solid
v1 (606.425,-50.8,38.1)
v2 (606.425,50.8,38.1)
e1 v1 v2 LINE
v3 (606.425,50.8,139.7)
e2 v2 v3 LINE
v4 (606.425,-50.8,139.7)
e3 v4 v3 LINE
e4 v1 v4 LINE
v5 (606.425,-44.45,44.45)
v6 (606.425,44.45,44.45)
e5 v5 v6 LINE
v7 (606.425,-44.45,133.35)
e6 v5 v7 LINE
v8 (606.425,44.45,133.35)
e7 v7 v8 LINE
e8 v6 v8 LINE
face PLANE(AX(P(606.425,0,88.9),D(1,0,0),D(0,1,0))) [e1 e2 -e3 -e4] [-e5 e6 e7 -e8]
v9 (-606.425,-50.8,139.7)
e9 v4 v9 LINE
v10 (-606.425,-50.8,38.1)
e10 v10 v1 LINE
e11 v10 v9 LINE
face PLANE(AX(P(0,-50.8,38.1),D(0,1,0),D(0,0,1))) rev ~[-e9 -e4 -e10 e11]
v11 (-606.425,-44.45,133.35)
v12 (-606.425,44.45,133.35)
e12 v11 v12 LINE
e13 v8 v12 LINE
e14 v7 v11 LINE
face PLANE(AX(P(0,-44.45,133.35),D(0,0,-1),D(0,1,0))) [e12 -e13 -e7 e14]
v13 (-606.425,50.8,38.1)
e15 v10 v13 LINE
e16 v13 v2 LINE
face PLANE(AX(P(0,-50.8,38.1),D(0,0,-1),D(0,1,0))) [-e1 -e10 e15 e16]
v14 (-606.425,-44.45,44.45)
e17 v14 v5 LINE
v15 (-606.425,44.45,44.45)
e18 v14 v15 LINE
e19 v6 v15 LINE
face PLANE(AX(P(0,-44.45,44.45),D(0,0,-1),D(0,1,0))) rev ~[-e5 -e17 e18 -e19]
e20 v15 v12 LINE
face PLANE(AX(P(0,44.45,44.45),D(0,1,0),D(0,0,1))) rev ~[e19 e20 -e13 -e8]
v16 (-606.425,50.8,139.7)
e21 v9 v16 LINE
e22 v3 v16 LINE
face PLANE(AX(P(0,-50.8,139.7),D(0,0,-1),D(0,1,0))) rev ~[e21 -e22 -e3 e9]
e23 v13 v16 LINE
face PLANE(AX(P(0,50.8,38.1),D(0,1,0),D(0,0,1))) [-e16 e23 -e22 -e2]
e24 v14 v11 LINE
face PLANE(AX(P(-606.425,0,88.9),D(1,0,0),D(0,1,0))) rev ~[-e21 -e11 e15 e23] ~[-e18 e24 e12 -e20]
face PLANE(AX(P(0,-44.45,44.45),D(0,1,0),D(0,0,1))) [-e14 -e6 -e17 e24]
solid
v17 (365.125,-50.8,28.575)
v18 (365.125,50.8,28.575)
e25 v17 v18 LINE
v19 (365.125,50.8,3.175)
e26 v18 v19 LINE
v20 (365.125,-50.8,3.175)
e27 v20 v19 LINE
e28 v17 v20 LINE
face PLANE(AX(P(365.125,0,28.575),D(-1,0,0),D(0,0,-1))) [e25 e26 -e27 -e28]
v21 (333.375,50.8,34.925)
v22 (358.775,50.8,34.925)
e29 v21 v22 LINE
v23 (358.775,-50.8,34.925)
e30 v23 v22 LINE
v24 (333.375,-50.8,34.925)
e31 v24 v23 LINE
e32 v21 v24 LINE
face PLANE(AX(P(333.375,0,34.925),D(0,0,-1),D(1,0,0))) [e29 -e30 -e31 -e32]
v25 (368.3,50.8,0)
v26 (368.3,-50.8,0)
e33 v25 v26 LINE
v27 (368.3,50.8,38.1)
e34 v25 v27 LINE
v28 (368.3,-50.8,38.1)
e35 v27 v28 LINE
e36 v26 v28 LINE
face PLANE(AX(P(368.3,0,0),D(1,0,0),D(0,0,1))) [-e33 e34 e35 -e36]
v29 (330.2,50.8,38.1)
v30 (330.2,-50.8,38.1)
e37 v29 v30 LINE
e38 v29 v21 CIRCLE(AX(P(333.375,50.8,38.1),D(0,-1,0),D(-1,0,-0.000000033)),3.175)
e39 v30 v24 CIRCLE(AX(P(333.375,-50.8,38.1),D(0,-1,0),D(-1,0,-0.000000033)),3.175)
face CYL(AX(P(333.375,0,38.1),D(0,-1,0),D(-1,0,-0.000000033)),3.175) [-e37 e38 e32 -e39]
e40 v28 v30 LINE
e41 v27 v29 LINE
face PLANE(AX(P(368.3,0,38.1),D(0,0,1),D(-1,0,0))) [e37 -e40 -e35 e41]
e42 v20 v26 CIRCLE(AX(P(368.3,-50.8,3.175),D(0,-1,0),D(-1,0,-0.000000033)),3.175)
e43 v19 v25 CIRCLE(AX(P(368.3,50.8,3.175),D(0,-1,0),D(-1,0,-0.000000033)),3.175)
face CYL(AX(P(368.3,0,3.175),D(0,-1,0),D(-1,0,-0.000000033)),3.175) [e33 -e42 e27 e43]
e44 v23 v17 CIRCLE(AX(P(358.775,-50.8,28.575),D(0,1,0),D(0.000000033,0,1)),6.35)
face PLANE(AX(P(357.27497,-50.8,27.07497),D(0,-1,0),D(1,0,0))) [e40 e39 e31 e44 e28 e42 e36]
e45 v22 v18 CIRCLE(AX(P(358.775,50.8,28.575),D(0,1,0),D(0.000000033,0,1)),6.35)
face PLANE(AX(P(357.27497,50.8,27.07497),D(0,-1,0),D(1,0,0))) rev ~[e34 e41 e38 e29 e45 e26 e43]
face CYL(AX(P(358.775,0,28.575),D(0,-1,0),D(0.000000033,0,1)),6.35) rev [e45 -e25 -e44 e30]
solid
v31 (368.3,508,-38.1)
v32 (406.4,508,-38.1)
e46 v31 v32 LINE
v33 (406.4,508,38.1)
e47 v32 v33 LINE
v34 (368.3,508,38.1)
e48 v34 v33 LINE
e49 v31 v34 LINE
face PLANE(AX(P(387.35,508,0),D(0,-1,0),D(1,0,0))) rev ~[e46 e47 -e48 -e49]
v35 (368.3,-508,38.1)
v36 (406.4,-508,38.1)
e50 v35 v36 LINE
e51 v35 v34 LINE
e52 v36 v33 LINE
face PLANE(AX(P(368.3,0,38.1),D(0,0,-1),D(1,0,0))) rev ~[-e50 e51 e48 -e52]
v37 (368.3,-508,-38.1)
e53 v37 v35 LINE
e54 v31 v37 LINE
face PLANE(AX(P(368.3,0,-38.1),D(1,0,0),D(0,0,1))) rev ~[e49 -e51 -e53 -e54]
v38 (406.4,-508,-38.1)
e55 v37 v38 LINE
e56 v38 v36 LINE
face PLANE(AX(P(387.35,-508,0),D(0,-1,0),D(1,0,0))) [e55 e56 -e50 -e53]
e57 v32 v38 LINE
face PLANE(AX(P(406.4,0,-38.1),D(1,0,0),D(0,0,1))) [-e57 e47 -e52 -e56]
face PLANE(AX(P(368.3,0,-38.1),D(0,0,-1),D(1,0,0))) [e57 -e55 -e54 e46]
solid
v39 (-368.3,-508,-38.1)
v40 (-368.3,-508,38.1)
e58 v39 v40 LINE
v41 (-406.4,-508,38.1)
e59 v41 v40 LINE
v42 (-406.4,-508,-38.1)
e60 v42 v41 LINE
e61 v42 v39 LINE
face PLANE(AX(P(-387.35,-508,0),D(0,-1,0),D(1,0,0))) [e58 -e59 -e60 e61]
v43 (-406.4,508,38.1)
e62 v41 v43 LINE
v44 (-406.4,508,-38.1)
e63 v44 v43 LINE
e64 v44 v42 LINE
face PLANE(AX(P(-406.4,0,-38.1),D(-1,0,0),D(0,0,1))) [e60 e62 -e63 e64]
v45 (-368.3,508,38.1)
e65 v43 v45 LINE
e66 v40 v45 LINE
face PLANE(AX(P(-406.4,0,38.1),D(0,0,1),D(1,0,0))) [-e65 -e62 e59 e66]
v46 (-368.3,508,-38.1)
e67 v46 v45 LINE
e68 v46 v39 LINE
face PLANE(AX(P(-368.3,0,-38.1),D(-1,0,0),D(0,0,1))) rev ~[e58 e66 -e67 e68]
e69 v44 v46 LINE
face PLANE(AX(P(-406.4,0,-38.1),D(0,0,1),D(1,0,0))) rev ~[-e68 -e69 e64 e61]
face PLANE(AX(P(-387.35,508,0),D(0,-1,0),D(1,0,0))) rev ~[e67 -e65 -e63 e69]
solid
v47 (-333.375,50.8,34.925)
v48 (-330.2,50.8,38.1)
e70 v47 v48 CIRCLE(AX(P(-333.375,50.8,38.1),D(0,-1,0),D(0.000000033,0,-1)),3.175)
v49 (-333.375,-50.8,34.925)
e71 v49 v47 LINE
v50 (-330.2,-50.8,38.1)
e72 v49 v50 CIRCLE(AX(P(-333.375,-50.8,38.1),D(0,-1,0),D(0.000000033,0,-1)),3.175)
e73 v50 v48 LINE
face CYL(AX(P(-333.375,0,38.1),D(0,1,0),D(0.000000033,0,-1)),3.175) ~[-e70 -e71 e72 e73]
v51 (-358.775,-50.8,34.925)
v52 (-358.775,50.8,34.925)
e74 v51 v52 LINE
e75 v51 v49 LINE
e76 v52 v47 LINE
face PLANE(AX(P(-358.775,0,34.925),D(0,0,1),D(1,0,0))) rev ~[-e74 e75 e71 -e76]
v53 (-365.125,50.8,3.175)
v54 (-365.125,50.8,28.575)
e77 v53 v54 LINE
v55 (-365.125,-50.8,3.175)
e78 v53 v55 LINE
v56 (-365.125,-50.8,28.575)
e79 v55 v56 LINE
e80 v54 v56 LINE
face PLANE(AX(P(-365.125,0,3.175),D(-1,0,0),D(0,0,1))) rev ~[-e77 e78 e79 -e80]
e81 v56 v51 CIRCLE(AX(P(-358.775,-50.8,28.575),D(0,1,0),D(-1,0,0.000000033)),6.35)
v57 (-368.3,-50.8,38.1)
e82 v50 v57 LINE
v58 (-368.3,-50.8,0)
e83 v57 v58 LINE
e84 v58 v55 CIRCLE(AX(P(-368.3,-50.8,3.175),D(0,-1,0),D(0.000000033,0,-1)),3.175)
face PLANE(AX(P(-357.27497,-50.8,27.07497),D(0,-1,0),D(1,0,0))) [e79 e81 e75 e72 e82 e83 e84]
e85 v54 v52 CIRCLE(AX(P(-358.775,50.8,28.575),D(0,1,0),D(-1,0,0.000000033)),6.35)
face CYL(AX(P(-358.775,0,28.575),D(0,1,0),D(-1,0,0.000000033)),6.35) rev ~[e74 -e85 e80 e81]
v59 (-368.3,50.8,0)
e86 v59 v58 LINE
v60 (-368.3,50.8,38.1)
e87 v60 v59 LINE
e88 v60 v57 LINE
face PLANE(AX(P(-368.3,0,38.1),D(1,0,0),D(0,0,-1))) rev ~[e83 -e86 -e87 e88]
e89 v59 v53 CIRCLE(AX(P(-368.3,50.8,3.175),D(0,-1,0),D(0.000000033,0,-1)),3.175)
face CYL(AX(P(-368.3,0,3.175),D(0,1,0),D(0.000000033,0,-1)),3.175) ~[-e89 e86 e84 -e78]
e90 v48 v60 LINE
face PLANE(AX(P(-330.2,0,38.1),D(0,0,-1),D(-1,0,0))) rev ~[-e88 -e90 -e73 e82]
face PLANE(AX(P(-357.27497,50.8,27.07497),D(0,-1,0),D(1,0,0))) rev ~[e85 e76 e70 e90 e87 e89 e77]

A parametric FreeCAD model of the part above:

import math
import FreeCAD as App
import Part
import Sketcher
Q = App.Units.Quantity

doc = App.newDocument("Part")
body = doc.addObject("PartDesign::Body", "Body")
body.AllowCompound = True

sketch1 = body.newObject("Sketcher::SketchObject", "Sketch")
sketch1.AttachmentSupport = (doc.getObject("XZ_Plane"), [""])
sketch1.MapMode = "FlatFace"
sketch1.addGeometry([
    Part.LineSegment(App.Vector(-406, 38, 0), App.Vector(-406, -38, 0)),
    Part.LineSegment(App.Vector(-406, -38, 0), App.Vector(-368, -38, 0)),
    Part.LineSegment(App.Vector(-368, -38, 0), App.Vector(-368, 38, 0)),
    Part.LineSegment(App.Vector(-368, 38, 0), App.Vector(-406, 38, 0)),
    Part.LineSegment(App.Vector(368, 38, 0), App.Vector(368, -38, 0)),
    Part.LineSegment(App.Vector(368, -38, 0), App.Vector(406, -38, 0)),
    Part.LineSegment(App.Vector(406, -38, 0), App.Vector(406, 38, 0)),
    Part.LineSegment(App.Vector(406, 38, 0), App.Vector(368, 38, 0)),
], False)
sketch1.addConstraint([
    Sketcher.Constraint("Coincident", 0, 2, 1, 1),
    Sketcher.Constraint("Coincident", 1, 2, 2, 1),
    Sketcher.Constraint("Coincident", 2, 2, 3, 1),
    Sketcher.Constraint("Coincident", 3, 2, 0, 1),
    Sketcher.Constraint("Coincident", 4, 2, 5, 1),
    Sketcher.Constraint("Coincident", 5, 2, 6, 1),
    Sketcher.Constraint("Coincident", 6, 2, 7, 1),
    Sketcher.Constraint("Coincident", 7, 2, 4, 1),
    Sketcher.Constraint("Vertical", 0),
    Sketcher.Constraint("Horizontal", 1),
    Sketcher.Constraint("Vertical", 2),
    Sketcher.Constraint("Horizontal", 3),
    Sketcher.Constraint("Vertical", 4),
    Sketcher.Constraint("Horizontal", 5),
    Sketcher.Constraint("Vertical", 6),
    Sketcher.Constraint("Horizontal", 7),
    Sketcher.Constraint("Symmetric", 2, 2, 4, 2, -1, 1),
    Sketcher.Constraint("Symmetric", 0, 2, 6, 2, -1, 1),
    Sketcher.Constraint("Horizontal", 1, 2, 4, 2),
    Sketcher.Constraint("DistanceY", 0, 2, 0, 1, Q("3 in")),
    Sketcher.Constraint("DistanceX", 1, 1, 1, 2, Q("1.5 in")),
    Sketcher.Constraint("DistanceX", 0, 2, -1, 1, Q("16 in")),
])
pad1 = body.newObject("PartDesign::Pad", "Pad")
pad1.Profile = sketch1
pad1.Length = Q("40 in")
pad1.Midplane = True
body2 = doc.addObject("PartDesign::Body", "Body001")

sketch2 = body2.newObject("Sketcher::SketchObject", "Sketch001")
sketch2.AttachmentSupport = (doc.getObject("YZ_Plane001"), [""])
sketch2.MapMode = "FlatFace"
sketch2.addGeometry([
    Part.LineSegment(App.Vector(-51, 140, 0), App.Vector(-51, 38, 0)),
    Part.LineSegment(App.Vector(-51, 38, 0), App.Vector(51, 38, 0)),
    Part.LineSegment(App.Vector(51, 38, 0), App.Vector(51, 140, 0)),
    Part.LineSegment(App.Vector(51, 140, 0), App.Vector(-51, 140, 0)),
    Part.LineSegment(App.Vector(44, 44, 0), App.Vector(-44, 44, 0)),
    Part.LineSegment(App.Vector(-44, 44, 0), App.Vector(-44, 133, 0)),
    Part.LineSegment(App.Vector(-44, 133, 0), App.Vector(44, 133, 0)),
    Part.LineSegment(App.Vector(44, 133, 0), App.Vector(44, 44, 0)),
], False)
sketch2.addConstraint([
    Sketcher.Constraint("Coincident", 0, 2, 1, 1),
    Sketcher.Constraint("Coincident", 1, 2, 2, 1),
    Sketcher.Constraint("Coincident", 2, 2, 3, 1),
    Sketcher.Constraint("Coincident", 3, 2, 0, 1),
    Sketcher.Constraint("Coincident", 4, 2, 5, 1),
    Sketcher.Constraint("Coincident", 5, 2, 6, 1),
    Sketcher.Constraint("Coincident", 6, 2, 7, 1),
    Sketcher.Constraint("Coincident", 7, 2, 4, 1),
    Sketcher.Constraint("Vertical", 0),
    Sketcher.Constraint("Horizontal", 1),
    Sketcher.Constraint("Vertical", 2),
    Sketcher.Constraint("Horizontal", 3),
    Sketcher.Constraint("Horizontal", 4),
    Sketcher.Constraint("Vertical", 5),
    Sketcher.Constraint("Horizontal", 6),
    Sketcher.Constraint("Vertical", 7),
    Sketcher.Constraint("Equal", 3, 0),
    Sketcher.Constraint("Equal", 6, 5),
    Sketcher.Constraint("DistanceX", 1, 1, 1, 2, Q("4 in")),
    Sketcher.Constraint("DistanceX", 4, 2, 4, 1, Q("3.5 in")),
    Sketcher.Constraint("DistanceX", 0, 2, -1, 1, Q("2 in")),
    Sketcher.Constraint("DistanceY", -1, 1, 0, 2, Q("1.5 in")),
    Sketcher.Constraint("DistanceX", 4, 2, -1, 1, Q("1.75 in")),
    Sketcher.Constraint("DistanceY", -1, 1, 4, 2, Q("1.75 in")),
])
pad2 = body2.newObject("PartDesign::Pad", "Pad001")
pad2.Profile = sketch2
pad2.Length = Q("47.75 in")
pad2.Midplane = True
body3 = doc.addObject("PartDesign::Body", "Body002")
body3.AllowCompound = True

sketch3 = body3.newObject("Sketcher::SketchObject", "Sketch002")
sketch3.AttachmentSupport = (doc.getObject("XZ_Plane002"), [""])
sketch3.MapMode = "FlatFace"
sketch3.addGeometry([
    Part.LineSegment(App.Vector(-330.2, 38.1, 0), App.Vector(-368.3, 38.1, 0)),
    Part.LineSegment(App.Vector(-368.3, 38.1, 0), App.Vector(-368.3, 0, 0)),
    Part.ArcOfCircle(Part.Circle(App.Vector(-368.3, 3.2, 0), App.Vector(0, 0, 1), 3.2), math.radians(-90), math.radians(0)),
    Part.LineSegment(App.Vector(-365.1, 3.2, 0), App.Vector(-365.1, 28.6, 0)),
    Part.ArcOfCircle(Part.Circle(App.Vector(-358.8, 28.6, 0), App.Vector(0, 0, 1), 6.4), math.radians(90), math.radians(180)),
    Part.LineSegment(App.Vector(-358.8, 34.9, 0), App.Vector(-333.4, 34.9, 0)),
    Part.ArcOfCircle(Part.Circle(App.Vector(-333.4, 38.1, 0), App.Vector(0, 0, 1), 3.2), math.radians(-90), math.radians(0)),
    Part.ArcOfCircle(Part.Circle(App.Vector(368.3, 3.2, 0), App.Vector(0, 0, 1), 3.2), math.radians(-180), math.radians(-90)),
    Part.LineSegment(App.Vector(368.3, 0, 0), App.Vector(368.3, 38.1, 0)),
    Part.LineSegment(App.Vector(368.3, 38.1, 0), App.Vector(330.2, 38.1, 0)),
    Part.ArcOfCircle(Part.Circle(App.Vector(333.4, 38.1, 0), App.Vector(0, 0, 1), 3.2), math.radians(-180), math.radians(-90)),
    Part.LineSegment(App.Vector(333.4, 34.9, 0), App.Vector(358.8, 34.9, 0)),
    Part.ArcOfCircle(Part.Circle(App.Vector(358.8, 28.6, 0), App.Vector(0, 0, 1), 6.4), math.radians(0), math.radians(90)),
    Part.LineSegment(App.Vector(365.1, 28.6, 0), App.Vector(365.1, 3.2, 0)),
], False)
sketch3.addConstraint([
    Sketcher.Constraint("Coincident", 0, 2, 1, 1),
    Sketcher.Constraint("Coincident", 1, 2, 2, 1),
    Sketcher.Constraint("Tangent", 2, 2, 3, 1),
    Sketcher.Constraint("Tangent", 3, 2, 4, 2),
    Sketcher.Constraint("Tangent", 4, 1, 5, 1),
    Sketcher.Constraint("Tangent", 5, 2, 6, 1),
    Sketcher.Constraint("Coincident", 6, 2, 0, 1),
    Sketcher.Constraint("Coincident", 7, 2, 8, 1),
    Sketcher.Constraint("Coincident", 8, 2, 9, 1),
    Sketcher.Constraint("Coincident", 9, 2, 10, 1),
    Sketcher.Constraint("Tangent", 10, 2, 11, 1),
    Sketcher.Constraint("Tangent", 11, 2, 12, 2),
    Sketcher.Constraint("Tangent", 12, 1, 13, 1),
    Sketcher.Constraint("Tangent", 13, 2, 7, 1),
    Sketcher.Constraint("Horizontal", 0),
    Sketcher.Constraint("Vertical", 1),
    Sketcher.Constraint("Vertical", 3),
    Sketcher.Constraint("Horizontal", 5),
    Sketcher.Constraint("Vertical", 8),
    Sketcher.Constraint("Horizontal", 9),
    Sketcher.Constraint("Horizontal", 11),
    Sketcher.Constraint("Vertical", 13),
    Sketcher.Constraint("Equal", 2, 6),
    Sketcher.Constraint("Equal", 6, 7),
    Sketcher.Constraint("Equal", 7, 10),
    Sketcher.Constraint("Equal", 4, 12),
    Sketcher.Constraint("Symmetric", 1, 2, 7, 2, -1, 1),
    Sketcher.Constraint("Symmetric", 2, 3, 7, 3, -2),
    Sketcher.Constraint("Symmetric", 6, 3, 10, 3, -2),
    Sketcher.Constraint("Horizontal", 10, 3, 0, 2),
    Sketcher.Constraint("Horizontal", 6, 2, 8, 2),
    Sketcher.Constraint("Vertical", 2, 3, 0, 2),
    Sketcher.Constraint("Equal", 9, 1),
    Sketcher.Constraint("DistanceX", 5, 1, 5, 2, Q("1 in")),
    Sketcher.Constraint("Radius", 4, Q("0.25 in")),
    Sketcher.Constraint("DistanceX", 0, 2, 0, 1, Q("1.5 in")),
    Sketcher.Constraint("DistanceX", 6, 2, -1, 1, Q("13 in")),
])
pad3 = body3.newObject("PartDesign::Pad", "Pad002")
pad3.Profile = sketch3
pad3.Length = Q("4 in")
pad3.Midplane = True

doc.recompute()
